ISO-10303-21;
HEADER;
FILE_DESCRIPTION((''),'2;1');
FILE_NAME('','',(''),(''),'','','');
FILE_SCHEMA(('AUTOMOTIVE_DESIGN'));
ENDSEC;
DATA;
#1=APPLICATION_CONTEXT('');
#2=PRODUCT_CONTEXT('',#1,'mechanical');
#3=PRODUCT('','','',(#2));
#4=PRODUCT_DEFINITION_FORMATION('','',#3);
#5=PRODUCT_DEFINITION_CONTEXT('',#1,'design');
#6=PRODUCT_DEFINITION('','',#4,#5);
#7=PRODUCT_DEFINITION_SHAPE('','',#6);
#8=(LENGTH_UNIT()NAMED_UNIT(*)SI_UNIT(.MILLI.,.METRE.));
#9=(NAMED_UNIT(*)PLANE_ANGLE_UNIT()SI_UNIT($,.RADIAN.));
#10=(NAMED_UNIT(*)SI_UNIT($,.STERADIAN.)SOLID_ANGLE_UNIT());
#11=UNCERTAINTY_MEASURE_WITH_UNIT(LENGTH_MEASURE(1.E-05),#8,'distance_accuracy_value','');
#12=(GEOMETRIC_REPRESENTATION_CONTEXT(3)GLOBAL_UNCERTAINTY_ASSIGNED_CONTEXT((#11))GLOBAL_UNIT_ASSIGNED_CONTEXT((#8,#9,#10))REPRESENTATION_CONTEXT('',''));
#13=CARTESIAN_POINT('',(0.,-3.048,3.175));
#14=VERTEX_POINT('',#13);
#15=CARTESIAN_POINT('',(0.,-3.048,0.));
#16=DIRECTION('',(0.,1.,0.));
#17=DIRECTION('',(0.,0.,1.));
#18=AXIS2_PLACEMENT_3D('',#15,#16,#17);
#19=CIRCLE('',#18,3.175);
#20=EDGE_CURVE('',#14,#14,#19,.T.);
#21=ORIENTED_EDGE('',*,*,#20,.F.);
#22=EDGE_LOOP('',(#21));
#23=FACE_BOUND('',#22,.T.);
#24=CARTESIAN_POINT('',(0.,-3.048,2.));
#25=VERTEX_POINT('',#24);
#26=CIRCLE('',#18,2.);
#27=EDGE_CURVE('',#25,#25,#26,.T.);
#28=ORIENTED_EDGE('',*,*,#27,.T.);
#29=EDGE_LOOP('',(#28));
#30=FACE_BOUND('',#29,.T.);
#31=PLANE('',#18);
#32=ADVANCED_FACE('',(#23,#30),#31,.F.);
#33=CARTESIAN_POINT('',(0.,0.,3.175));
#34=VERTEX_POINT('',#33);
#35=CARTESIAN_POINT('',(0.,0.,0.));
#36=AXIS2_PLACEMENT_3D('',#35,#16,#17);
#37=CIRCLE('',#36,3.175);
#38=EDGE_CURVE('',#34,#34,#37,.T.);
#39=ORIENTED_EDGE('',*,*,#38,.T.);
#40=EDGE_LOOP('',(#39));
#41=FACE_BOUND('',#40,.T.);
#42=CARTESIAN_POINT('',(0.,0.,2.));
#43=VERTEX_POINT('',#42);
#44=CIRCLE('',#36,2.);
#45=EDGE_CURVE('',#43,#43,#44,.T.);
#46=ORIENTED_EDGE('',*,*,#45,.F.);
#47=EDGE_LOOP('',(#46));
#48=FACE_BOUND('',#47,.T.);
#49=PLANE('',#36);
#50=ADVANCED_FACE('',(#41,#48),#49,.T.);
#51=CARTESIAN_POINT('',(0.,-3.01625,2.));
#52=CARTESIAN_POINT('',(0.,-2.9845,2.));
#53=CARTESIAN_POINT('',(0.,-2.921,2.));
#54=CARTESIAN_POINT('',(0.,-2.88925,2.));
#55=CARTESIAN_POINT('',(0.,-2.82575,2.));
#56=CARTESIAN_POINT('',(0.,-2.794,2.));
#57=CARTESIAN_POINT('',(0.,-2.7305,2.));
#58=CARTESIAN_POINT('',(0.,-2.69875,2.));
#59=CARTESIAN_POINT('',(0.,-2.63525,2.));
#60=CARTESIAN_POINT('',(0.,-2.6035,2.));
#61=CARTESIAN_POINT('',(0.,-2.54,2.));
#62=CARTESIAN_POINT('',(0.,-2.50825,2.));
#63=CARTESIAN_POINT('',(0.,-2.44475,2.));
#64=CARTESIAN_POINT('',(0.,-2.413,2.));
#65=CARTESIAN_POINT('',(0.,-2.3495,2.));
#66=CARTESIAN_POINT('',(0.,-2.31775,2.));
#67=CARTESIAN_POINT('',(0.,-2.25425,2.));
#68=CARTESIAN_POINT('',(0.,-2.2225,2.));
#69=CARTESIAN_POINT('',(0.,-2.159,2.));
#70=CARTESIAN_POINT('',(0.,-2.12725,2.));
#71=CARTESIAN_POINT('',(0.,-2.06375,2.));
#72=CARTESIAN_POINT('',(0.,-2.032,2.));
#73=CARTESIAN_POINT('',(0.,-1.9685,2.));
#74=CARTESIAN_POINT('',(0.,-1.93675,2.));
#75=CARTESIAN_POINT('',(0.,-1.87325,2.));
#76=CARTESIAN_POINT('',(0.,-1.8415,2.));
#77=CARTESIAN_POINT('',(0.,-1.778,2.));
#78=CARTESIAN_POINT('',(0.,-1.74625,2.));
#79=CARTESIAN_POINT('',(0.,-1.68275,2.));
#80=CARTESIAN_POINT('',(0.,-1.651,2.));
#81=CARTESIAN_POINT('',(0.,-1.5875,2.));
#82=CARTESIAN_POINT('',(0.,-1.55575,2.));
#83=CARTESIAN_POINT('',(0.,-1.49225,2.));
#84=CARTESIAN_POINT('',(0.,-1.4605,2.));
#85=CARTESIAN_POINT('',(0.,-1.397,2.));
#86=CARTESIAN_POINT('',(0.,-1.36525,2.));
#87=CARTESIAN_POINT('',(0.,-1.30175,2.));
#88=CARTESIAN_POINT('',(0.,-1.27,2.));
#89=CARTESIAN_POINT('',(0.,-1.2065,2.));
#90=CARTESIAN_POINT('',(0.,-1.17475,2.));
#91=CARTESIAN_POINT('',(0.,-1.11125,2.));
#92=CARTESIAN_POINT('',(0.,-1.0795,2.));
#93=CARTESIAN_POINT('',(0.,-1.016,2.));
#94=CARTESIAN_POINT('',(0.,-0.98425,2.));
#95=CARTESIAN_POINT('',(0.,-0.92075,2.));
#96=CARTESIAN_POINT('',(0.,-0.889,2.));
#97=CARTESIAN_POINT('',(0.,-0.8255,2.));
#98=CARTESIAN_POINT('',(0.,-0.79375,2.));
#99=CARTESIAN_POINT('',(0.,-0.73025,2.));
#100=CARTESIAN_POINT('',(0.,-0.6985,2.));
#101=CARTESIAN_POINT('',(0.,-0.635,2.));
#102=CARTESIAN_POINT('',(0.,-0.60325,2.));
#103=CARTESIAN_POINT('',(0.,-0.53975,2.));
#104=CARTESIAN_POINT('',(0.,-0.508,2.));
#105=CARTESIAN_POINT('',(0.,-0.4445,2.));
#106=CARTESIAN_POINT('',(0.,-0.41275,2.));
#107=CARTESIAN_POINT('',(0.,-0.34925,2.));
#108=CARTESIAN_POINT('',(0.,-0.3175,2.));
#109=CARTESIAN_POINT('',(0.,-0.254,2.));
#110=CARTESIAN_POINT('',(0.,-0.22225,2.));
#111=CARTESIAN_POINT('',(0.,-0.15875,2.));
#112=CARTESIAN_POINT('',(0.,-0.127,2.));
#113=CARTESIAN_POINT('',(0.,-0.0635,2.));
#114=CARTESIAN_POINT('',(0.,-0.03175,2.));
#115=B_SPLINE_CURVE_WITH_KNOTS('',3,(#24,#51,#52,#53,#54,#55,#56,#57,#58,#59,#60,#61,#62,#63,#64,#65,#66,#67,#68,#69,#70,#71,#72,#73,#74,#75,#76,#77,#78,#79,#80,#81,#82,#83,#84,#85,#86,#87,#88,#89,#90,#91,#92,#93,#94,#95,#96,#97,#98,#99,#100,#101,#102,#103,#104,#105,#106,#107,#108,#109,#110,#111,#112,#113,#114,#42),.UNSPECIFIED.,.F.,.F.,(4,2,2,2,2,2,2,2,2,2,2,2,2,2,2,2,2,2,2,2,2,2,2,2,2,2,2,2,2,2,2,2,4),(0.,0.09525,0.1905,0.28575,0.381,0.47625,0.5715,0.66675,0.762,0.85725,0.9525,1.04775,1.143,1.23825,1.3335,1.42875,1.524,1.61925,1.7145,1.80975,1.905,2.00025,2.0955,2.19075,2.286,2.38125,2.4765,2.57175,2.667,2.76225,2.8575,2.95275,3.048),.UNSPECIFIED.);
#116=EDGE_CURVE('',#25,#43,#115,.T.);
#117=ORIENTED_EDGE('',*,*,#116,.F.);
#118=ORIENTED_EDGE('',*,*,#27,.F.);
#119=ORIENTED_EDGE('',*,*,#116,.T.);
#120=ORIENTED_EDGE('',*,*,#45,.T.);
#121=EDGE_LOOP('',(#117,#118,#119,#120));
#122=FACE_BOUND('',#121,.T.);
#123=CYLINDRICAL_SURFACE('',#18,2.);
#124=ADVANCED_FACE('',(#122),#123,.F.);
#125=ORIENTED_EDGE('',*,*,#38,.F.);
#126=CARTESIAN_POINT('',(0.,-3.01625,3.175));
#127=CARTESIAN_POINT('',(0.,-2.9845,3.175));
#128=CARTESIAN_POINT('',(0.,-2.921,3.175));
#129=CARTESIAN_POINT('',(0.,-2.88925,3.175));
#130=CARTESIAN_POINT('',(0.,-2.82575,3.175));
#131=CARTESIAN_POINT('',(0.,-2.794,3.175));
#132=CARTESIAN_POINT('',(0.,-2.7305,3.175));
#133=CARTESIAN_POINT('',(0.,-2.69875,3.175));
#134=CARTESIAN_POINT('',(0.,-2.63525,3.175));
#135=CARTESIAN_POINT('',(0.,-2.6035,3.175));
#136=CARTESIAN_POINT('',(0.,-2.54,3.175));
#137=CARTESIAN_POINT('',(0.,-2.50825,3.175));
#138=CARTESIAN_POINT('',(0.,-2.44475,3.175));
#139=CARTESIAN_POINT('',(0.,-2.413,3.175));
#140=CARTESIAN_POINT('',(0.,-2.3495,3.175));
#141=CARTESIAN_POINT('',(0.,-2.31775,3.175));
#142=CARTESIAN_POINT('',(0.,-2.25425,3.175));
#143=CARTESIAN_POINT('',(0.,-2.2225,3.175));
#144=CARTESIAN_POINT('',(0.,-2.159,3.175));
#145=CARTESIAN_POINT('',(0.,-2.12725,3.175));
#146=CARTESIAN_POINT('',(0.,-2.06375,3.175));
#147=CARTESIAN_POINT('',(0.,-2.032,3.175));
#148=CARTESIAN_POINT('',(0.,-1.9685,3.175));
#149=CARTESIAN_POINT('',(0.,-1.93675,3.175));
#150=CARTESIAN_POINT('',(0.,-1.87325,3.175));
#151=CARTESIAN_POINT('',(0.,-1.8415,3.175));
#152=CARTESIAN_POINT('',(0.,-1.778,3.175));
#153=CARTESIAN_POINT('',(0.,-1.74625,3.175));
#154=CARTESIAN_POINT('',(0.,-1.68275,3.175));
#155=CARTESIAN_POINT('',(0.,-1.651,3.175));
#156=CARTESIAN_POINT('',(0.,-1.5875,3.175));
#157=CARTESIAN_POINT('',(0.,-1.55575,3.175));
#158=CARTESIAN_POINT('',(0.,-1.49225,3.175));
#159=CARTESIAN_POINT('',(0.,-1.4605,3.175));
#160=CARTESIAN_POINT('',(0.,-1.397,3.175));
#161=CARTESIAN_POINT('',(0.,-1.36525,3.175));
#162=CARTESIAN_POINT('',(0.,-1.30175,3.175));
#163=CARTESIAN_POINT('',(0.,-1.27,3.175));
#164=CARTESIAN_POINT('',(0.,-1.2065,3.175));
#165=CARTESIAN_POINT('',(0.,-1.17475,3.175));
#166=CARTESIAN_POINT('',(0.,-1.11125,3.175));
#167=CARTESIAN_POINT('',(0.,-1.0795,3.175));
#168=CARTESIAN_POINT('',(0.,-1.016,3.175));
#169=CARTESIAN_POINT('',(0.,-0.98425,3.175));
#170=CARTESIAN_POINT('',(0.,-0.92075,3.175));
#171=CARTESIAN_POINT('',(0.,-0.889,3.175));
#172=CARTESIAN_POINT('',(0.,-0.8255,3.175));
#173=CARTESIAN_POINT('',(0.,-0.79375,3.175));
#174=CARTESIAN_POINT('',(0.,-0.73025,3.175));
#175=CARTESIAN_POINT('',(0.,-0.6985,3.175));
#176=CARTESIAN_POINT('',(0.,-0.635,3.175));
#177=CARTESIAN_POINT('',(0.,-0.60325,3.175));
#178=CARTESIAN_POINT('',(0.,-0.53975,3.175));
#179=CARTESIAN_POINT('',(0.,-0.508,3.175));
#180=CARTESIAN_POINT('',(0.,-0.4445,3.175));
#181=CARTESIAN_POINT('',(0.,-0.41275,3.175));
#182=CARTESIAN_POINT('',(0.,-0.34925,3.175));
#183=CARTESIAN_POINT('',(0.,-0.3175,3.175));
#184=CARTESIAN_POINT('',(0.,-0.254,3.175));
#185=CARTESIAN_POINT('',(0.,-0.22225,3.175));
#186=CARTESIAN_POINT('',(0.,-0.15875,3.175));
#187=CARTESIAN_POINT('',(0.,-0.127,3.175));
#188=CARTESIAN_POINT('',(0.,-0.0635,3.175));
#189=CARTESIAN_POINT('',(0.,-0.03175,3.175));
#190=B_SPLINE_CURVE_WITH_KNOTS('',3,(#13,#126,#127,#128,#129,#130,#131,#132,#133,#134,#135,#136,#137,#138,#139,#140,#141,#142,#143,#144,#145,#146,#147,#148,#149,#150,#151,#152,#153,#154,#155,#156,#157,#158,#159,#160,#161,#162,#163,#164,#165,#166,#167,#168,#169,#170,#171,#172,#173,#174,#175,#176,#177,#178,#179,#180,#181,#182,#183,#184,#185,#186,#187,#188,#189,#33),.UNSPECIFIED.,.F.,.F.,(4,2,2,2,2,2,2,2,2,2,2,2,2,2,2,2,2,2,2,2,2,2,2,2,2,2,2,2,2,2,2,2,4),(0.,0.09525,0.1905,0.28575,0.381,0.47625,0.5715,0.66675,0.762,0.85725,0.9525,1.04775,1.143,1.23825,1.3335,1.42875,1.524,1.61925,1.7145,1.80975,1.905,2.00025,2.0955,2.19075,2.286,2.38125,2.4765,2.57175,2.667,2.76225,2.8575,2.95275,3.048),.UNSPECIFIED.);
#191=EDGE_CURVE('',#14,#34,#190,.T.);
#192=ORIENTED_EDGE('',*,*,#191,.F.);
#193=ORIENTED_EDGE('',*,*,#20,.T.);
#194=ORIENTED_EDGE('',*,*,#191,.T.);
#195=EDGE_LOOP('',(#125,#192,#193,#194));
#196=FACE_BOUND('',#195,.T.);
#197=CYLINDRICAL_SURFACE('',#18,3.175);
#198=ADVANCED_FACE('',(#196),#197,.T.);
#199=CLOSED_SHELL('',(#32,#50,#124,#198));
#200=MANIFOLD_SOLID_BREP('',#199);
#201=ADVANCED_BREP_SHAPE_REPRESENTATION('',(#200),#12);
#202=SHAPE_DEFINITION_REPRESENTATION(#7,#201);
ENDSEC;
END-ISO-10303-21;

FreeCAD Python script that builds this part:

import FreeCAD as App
import Part
import Sketcher
Q = App.Units.Quantity

doc = App.newDocument("Part")
body = doc.addObject("PartDesign::Body", "Body")

# Sketch on XZ plane
sketch1 = body.newObject("Sketcher::SketchObject", "Sketch")
sketch1.AttachmentSupport = (doc.getObject("XZ_Plane"), [""])
sketch1.MapMode = "FlatFace"
sketch1.addGeometry([
    Part.Circle(App.Vector(0, 0, 0), App.Vector(0, 0, 1), 3.2),
    Part.Circle(App.Vector(0, 0, 0), App.Vector(0, 0, 1), 2),
], False)
sketch1.addConstraint([
    Sketcher.Constraint("Coincident", 0, 3, -1, 1),
    Sketcher.Constraint("Coincident", 1, 3, -1, 1),
    Sketcher.Constraint("Diameter", 0, Q("0.25 in")),
    Sketcher.Constraint("Diameter", 1, 4.0),
])
pad1 = body.newObject("PartDesign::Pad", "Pad")
pad1.Profile = sketch1
pad1.Length = Q("0.12 in")

doc.recompute()
